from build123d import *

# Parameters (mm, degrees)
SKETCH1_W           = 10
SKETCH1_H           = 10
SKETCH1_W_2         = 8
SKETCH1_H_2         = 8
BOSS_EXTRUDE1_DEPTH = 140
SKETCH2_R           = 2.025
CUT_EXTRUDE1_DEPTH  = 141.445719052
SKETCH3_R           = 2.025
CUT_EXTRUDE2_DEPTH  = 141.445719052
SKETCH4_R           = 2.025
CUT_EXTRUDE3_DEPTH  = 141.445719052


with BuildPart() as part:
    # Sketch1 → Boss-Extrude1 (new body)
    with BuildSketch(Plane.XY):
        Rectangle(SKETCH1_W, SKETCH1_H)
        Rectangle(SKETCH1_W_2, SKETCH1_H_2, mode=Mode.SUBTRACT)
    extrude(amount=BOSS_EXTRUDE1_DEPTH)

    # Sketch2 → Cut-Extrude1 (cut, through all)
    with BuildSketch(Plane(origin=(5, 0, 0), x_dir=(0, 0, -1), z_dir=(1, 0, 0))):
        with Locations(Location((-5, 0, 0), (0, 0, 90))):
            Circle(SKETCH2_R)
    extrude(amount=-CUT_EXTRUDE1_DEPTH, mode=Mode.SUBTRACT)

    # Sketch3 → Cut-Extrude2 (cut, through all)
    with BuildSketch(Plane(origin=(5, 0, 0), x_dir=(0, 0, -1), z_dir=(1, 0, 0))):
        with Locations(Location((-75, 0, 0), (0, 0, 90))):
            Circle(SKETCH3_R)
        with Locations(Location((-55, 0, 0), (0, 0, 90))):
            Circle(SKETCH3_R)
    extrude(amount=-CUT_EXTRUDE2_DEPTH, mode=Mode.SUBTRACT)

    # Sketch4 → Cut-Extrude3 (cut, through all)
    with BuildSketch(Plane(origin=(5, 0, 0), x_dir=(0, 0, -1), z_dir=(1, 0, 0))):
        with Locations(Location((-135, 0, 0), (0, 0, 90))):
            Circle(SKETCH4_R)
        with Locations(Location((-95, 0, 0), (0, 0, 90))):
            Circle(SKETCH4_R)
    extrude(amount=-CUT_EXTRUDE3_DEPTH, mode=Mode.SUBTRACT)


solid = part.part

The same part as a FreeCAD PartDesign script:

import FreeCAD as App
import Part
import Sketcher

doc = App.newDocument("Part")
body = doc.addObject("PartDesign::Body", "Body")

# Sketch on XY plane
sketch1 = body.newObject("Sketcher::SketchObject", "Sketch")
sketch1.AttachmentSupport = (doc.getObject("XY_Plane"), [""])
sketch1.MapMode = "FlatFace"
sketch1.addGeometry([
    Part.LineSegment(App.Vector(-5, 5, 0), App.Vector(-5, -5, 0)),  # 0
    Part.LineSegment(App.Vector(-5, -5, 0), App.Vector(5, -5, 0)),  # 1
    Part.LineSegment(App.Vector(5, -5, 0), App.Vector(5, 5, 0)),  # 2
    Part.LineSegment(App.Vector(5, 5, 0), App.Vector(-5, 5, 0)),  # 3
    Part.LineSegment(App.Vector(4, -4, 0), App.Vector(-4, -4, 0)),  # 4
    Part.LineSegment(App.Vector(-4, -4, 0), App.Vector(-4, 4, 0)),  # 5
    Part.LineSegment(App.Vector(-4, 4, 0), App.Vector(4, 4, 0)),  # 6
    Part.LineSegment(App.Vector(4, 4, 0), App.Vector(4, -4, 0)),  # 7
], False)
sketch1.addConstraint([
    Sketcher.Constraint("Coincident", 0, 2, 1, 1),
    Sketcher.Constraint("Coincident", 1, 2, 2, 1),
    Sketcher.Constraint("Coincident", 2, 2, 3, 1),
    Sketcher.Constraint("Coincident", 3, 2, 0, 1),
    Sketcher.Constraint("Coincident", 4, 2, 5, 1),
    Sketcher.Constraint("Coincident", 5, 2, 6, 1),
    Sketcher.Constraint("Coincident", 6, 2, 7, 1),
    Sketcher.Constraint("Coincident", 7, 2, 4, 1),
    Sketcher.Constraint("Vertical", 0),
    Sketcher.Constraint("Horizontal", 1),
    Sketcher.Constraint("Vertical", 2),
    Sketcher.Constraint("Horizontal", 3),
    Sketcher.Constraint("Horizontal", 4),
    Sketcher.Constraint("Vertical", 5),
    Sketcher.Constraint("Horizontal", 6),
    Sketcher.Constraint("Vertical", 7),
    Sketcher.Constraint("Symmetric", 0, 2, 2, 2, -1, 1),
    Sketcher.Constraint("Symmetric", 4, 2, 6, 2, -1, 1),
    Sketcher.Constraint("Equal", 3, 0),
    Sketcher.Constraint("Equal", 6, 5),
    Sketcher.Constraint("DistanceX", 1, 1, 1, 2, 10.0),
    Sketcher.Constraint("DistanceX", 4, 2, 4, 1, 8.0),
])
pad1 = body.newObject("PartDesign::Pad", "Pad")
pad1.Profile = sketch1
pad1.Length = 140

# Sketch on YZ plane
sketch2 = body.newObject("Sketcher::SketchObject", "Sketch001")
sketch2.AttachmentSupport = (doc.getObject("YZ_Plane"), [""])
sketch2.MapMode = "FlatFace"
sketch2.AttachmentOffset = App.Placement(App.Vector(0, 0, 5), App.Rotation())
sketch2.addGeometry(Part.Circle(App.Vector(0, 5, 0), App.Vector(0, 0, 1), 2), False)
sketch2.addConstraint([
    Sketcher.Constraint("PointOnObject", 0, 3, -2),
    Sketcher.Constraint("Diameter", 0, 4.05),
    Sketcher.Constraint("DistanceY", -1, 1, 0, 3, 5.0),
])
pocket1 = body.newObject("PartDesign::Pocket", "Pocket")
pocket1.Profile = sketch2
pocket1.Type = "ThroughAll"

# Sketch on YZ plane
sketch3 = body.newObject("Sketcher::SketchObject", "Sketch002")
sketch3.AttachmentSupport = (doc.getObject("YZ_Plane"), [""])
sketch3.MapMode = "FlatFace"
sketch3.AttachmentOffset = App.Placement(App.Vector(0, 0, 5), App.Rotation())
sketch3.addGeometry([
    Part.Circle(App.Vector(0, 75, 0), App.Vector(0, 0, 1), 2),
    Part.Circle(App.Vector(0, 55, 0), App.Vector(0, 0, 1), 2),
], False)
sketch3.addConstraint([
    Sketcher.Constraint("Equal", 0, 1),
    Sketcher.Constraint("PointOnObject", 0, 3, -2),
    Sketcher.Constraint("PointOnObject", 1, 3, -2),
    Sketcher.Constraint("Diameter", 0, 4.05),
    Sketcher.Constraint("DistanceY", -1, 1, 0, 3, 75.0),
    Sketcher.Constraint("DistanceY", -1, 1, 1, 3, 55.0),
])
pocket2 = body.newObject("PartDesign::Pocket", "Pocket001")
pocket2.Profile = sketch3
pocket2.Type = "ThroughAll"

# Sketch on YZ plane
sketch4 = body.newObject("Sketcher::SketchObject", "Sketch003")
sketch4.AttachmentSupport = (doc.getObject("YZ_Plane"), [""])
sketch4.MapMode = "FlatFace"
sketch4.AttachmentOffset = App.Placement(App.Vector(0, 0, 5), App.Rotation())
sketch4.addGeometry([
    Part.Circle(App.Vector(0, 135, 0), App.Vector(0, 0, 1), 2),
    Part.Circle(App.Vector(0, 95, 0), App.Vector(0, 0, 1), 2),
], False)
sketch4.addConstraint([
    Sketcher.Constraint("Equal", 0, 1),
    Sketcher.Constraint("PointOnObject", 0, 3, -2),
    Sketcher.Constraint("PointOnObject", 1, 3, -2),
    Sketcher.Constraint("Diameter", 0, 4.05),
    Sketcher.Constraint("DistanceY", -1, 1, 0, 3, 135.0),
    Sketcher.Constraint("DistanceY", -1, 1, 1, 3, 95.0),
])
pocket3 = body.newObject("PartDesign::Pocket", "Pocket002")
pocket3.Profile = sketch4
pocket3.Type = "ThroughAll"

doc.recompute()
